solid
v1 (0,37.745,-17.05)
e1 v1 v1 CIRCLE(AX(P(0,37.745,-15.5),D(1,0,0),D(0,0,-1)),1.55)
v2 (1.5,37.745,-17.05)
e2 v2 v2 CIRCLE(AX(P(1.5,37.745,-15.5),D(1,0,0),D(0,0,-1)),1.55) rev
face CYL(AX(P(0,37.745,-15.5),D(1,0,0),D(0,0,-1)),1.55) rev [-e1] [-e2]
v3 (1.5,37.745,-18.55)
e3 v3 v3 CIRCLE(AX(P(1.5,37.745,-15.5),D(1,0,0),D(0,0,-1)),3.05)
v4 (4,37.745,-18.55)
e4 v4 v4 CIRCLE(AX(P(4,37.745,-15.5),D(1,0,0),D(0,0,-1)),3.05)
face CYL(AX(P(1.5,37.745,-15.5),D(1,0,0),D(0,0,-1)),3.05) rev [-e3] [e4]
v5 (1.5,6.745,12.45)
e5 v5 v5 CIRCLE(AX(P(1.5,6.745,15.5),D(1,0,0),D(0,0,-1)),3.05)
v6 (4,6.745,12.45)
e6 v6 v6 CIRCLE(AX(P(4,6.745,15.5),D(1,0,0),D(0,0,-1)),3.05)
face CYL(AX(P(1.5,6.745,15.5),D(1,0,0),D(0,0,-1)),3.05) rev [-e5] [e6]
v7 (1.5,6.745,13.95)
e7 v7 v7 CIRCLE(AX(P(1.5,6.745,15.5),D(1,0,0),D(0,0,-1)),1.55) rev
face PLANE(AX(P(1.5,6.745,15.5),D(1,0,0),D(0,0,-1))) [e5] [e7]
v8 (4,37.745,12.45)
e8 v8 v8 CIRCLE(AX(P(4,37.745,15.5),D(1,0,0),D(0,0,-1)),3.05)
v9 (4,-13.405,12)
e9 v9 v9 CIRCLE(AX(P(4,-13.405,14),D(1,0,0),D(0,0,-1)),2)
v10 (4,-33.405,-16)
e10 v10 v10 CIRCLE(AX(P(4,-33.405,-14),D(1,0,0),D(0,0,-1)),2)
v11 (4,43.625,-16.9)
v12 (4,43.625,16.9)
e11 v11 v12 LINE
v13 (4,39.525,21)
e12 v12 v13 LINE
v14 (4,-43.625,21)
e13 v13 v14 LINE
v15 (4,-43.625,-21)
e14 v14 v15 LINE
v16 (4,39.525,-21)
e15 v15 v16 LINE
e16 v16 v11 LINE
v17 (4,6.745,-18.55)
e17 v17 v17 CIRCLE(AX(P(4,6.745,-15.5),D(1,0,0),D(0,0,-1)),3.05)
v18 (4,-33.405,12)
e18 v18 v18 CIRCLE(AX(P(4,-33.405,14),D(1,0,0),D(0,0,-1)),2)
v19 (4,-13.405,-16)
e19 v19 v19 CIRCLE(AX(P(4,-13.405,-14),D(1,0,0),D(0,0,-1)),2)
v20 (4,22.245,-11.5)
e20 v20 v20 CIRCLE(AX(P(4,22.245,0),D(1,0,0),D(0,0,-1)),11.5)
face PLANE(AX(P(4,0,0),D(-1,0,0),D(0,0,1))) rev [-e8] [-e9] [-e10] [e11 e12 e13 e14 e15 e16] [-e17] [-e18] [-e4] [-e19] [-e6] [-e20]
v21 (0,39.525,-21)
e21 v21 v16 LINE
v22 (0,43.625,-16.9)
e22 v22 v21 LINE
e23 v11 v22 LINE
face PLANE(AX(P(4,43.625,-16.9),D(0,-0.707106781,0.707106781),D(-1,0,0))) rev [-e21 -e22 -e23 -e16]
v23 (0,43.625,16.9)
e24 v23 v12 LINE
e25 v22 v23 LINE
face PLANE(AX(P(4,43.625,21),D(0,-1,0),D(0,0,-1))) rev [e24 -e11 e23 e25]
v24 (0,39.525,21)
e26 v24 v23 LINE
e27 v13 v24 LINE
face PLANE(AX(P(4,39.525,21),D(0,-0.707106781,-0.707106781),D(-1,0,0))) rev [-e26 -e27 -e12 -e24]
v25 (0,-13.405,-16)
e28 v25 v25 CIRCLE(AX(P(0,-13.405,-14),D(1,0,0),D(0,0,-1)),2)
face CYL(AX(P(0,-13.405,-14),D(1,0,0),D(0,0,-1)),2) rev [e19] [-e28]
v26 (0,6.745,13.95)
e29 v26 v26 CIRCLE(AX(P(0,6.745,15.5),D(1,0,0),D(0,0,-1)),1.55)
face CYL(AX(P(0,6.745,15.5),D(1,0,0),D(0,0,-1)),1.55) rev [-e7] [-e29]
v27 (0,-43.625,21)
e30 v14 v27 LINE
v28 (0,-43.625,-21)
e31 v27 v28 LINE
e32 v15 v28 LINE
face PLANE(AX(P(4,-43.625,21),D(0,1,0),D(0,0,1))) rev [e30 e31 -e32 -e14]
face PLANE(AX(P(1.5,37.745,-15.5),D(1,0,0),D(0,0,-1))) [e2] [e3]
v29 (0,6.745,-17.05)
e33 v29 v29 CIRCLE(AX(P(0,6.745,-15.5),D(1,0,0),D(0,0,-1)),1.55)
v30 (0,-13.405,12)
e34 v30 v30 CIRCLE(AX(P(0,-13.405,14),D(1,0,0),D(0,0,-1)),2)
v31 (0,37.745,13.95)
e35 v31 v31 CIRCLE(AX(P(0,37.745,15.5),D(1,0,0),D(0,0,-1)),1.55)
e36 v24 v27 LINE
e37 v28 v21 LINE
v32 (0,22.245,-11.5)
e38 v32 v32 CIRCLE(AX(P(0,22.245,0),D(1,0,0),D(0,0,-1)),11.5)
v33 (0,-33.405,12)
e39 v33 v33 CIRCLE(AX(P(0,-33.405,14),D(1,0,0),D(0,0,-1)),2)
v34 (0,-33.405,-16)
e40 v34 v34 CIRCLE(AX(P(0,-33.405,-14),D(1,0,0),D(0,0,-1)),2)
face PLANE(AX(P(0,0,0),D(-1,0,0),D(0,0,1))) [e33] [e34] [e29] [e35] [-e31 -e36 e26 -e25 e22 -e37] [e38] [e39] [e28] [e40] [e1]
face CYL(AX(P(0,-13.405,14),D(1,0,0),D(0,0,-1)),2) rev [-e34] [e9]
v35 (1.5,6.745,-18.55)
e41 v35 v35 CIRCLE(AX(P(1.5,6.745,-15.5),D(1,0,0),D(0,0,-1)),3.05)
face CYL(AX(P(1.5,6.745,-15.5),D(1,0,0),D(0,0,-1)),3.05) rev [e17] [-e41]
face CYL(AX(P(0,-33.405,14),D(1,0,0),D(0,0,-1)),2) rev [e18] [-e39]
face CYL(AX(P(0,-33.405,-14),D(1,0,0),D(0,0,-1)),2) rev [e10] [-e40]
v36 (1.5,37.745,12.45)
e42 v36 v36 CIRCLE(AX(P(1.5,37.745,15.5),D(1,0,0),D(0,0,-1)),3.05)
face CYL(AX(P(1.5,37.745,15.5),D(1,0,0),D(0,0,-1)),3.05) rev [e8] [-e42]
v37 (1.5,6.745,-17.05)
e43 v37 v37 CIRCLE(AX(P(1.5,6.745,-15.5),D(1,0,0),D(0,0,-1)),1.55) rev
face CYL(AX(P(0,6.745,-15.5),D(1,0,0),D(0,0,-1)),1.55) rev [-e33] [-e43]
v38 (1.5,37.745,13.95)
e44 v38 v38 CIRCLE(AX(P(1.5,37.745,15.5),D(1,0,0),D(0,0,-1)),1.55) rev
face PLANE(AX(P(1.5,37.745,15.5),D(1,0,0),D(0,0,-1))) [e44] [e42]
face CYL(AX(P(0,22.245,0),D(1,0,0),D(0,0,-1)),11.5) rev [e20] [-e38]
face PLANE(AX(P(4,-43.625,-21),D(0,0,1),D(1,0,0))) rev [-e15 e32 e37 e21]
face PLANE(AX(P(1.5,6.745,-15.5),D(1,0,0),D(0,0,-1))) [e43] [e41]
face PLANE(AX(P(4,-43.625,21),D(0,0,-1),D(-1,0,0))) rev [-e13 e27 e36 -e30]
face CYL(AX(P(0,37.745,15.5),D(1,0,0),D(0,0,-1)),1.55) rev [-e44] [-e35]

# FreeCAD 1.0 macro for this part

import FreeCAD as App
import Part
import Sketcher
from FreeCAD import Vector
Q = App.Units.Quantity


def edges_at(feature, points):
    """Names of the edges that pass closest to the given points."""
    edges = feature.Shape.Edges
    near = lambda p: min(range(len(edges)), key=lambda i: edges[i].distToShape(Part.Vertex(*p))[0])
    return sorted({f"Edge{near(p) + 1}" for p in points})

doc = App.newDocument("Part")
params = doc.addObject("Spreadsheet::Sheet", "Params")
for row, (alias, value) in enumerate([
    ("sketch1_height", "42 mm"),
    ("sketch1_width", "87.25 mm"),
    ("pad1_length", "4 mm"),
    ("sketch2_diameter", "23 mm"),
    ("sketch2_diameter2", "3.1 mm"),
    ("sketch3_diameter", "4 mm"),
    ("chamfer_size", "4.1 mm"),
    ("sketch4_diameter", "6.1 mm"),
    ("pocket3_length", "2.5 mm"),
], start=1):
    params.set(f"A{row}", alias)
    params.set(f"B{row}", "=" + value)
    params.setAlias(f"B{row}", alias)

body = doc.addObject("PartDesign::Body", "Body")

# Sketch on YZ plane
sketch1 = body.newObject("Sketcher::SketchObject", "Sketch")
sketch1.AttachmentSupport = (doc.getObject("YZ_Plane"), [""])
sketch1.MapMode = "FlatFace"
sketch1.addGeometry([
    Part.LineSegment(Vector(44, 21, 0), Vector(-44, 21, 0)),
    Part.LineSegment(Vector(-44, 21, 0), Vector(-44, -21, 0)),
    Part.LineSegment(Vector(-44, -21, 0), Vector(44, -21, 0)),
    Part.LineSegment(Vector(44, -21, 0), Vector(44, 21, 0)),
], False)
sketch1.addConstraint([
    Sketcher.Constraint("Coincident", 0, 2, 1, 1),
    Sketcher.Constraint("Coincident", 1, 2, 2, 1),
    Sketcher.Constraint("Coincident", 2, 2, 3, 1),
    Sketcher.Constraint("Coincident", 3, 2, 0, 1),
    Sketcher.Constraint("Horizontal", 0),
    Sketcher.Constraint("Vertical", 1),
    Sketcher.Constraint("Horizontal", 2),
    Sketcher.Constraint("Vertical", 3),
    Sketcher.Constraint("Symmetric", 0, 2, 2, 2, -1, 1),
    Sketcher.Constraint("DistanceY", 1, 2, 1, 1, Q("42 mm")),
    Sketcher.Constraint("DistanceX", 0, 2, 0, 1, Q("87.25 mm")),
])
sketch1.setExpression("Constraints[9]", "Params.sketch1_height")
sketch1.setExpression("Constraints[10]", "Params.sketch1_width")
pad1 = body.newObject("PartDesign::Pad", "Pad")
pad1.Profile = sketch1
pad1.setExpression("Length", "Params.pad1_length")

# Sketch on YZ plane
sketch2 = body.newObject("Sketcher::SketchObject", "Sketch001")
sketch2.AttachmentSupport = (doc.getObject("YZ_Plane"), [""])
sketch2.MapMode = "FlatFace"
sketch2.AttachmentOffset = App.Placement(Vector(0, 0, 4), App.Rotation())
sketch2.addGeometry([
    Part.Circle(Vector(37.7, 15.5, 0), Vector(0, 0, 1), 1.6),  # 0
    Part.Circle(Vector(37.7, -15.5, 0), Vector(0, 0, 1), 1.6),  # 1
    Part.Circle(Vector(6.7, -15.5, 0), Vector(0, 0, 1), 1.6),  # 2
    Part.Circle(Vector(6.7, 15.5, 0), Vector(0, 0, 1), 1.6),  # 3
    Part.Circle(Vector(22.2, 0, 0), Vector(0, 0, 1), 11.5),  # 4
], False)
sketch2.addConstraint([
    Sketcher.Constraint("Equal", 0, 1),
    Sketcher.Constraint("Equal", 1, 2),
    Sketcher.Constraint("Equal", 2, 3),
    Sketcher.Constraint("Symmetric", 0, 3, 1, 3, -1),
    Sketcher.Constraint("Symmetric", 2, 3, 3, 3, -1),
    Sketcher.Constraint("PointOnObject", 4, 3, -1),
    Sketcher.Constraint("Horizontal", 1, 3, 2, 3),
    Sketcher.Constraint("Diameter", 4, Q("23 mm")),
    Sketcher.Constraint("Diameter", 0, Q("3.1 mm")),
    Sketcher.Constraint("DistanceY", 1, 3, 0, 3, Q("31 mm")),
    Sketcher.Constraint("DistanceX", 2, 3, 1, 3, Q("31 mm")),
    Sketcher.Constraint("DistanceX", 4, 3, 0, 3, Q("15.5 mm")),
    Sketcher.Constraint("DistanceX", -1, 1, 0, 3, Q("37.745 mm")),
])
sketch2.setExpression("Constraints[7]", "Params.sketch2_diameter")
sketch2.setExpression("Constraints[8]", "Params.sketch2_diameter2")
pocket1 = body.newObject("PartDesign::Pocket", "Pocket")
pocket1.Profile = sketch2
pocket1.Type = "ThroughAll"

# Sketch on YZ plane
sketch3 = body.newObject("Sketcher::SketchObject", "Sketch002")
sketch3.AttachmentSupport = (doc.getObject("YZ_Plane"), [""])
sketch3.MapMode = "FlatFace"
sketch3.AttachmentOffset = App.Placement(Vector(0, 0, 4), App.Rotation())
sketch3.addGeometry([
    Part.Circle(Vector(-13.4, 14, 0), Vector(0, 0, 1), 2),
    Part.Circle(Vector(-13.4, -14, 0), Vector(0, 0, 1), 2),
    Part.Circle(Vector(-33.4, 14, 0), Vector(0, 0, 1), 2),
    Part.Circle(Vector(-33.4, -14, 0), Vector(0, 0, 1), 2),
], False)
sketch3.addConstraint([
    Sketcher.Constraint("Equal", 0, 1),
    Sketcher.Constraint("Equal", 1, 2),
    Sketcher.Constraint("Equal", 2, 3),
    Sketcher.Constraint("Symmetric", 0, 3, 1, 3, -1),
    Sketcher.Constraint("Symmetric", 2, 3, 3, 3, -1),
    Sketcher.Constraint("Horizontal", 0, 3, 2, 3),
    Sketcher.Constraint("Diameter", 0, Q("4 mm")),
    Sketcher.Constraint("DistanceY", -1, 1, 0, 3, Q("14 mm")),
    Sketcher.Constraint("DistanceX", 2, 3, 0, 3, Q("20 mm")),
    Sketcher.Constraint("DistanceX", 0, 3, -1, 1, Q("13.405 mm")),
])
sketch3.setExpression("Constraints[6]", "Params.sketch3_diameter")
pocket2 = body.newObject("PartDesign::Pocket", "Pocket001")
pocket2.Profile = sketch3
pocket2.Type = "ThroughAll"
doc.recompute()

chamfer = body.newObject("PartDesign::Chamfer", "Chamfer")
chamfer.Base = (pocket2, edges_at(pocket2, [(2, 43.625, 21), (2, 43.625, -21)]))
chamfer.setExpression("Size", "Params.chamfer_size")

# Sketch on YZ plane
sketch4 = body.newObject("Sketcher::SketchObject", "Sketch003")
sketch4.AttachmentSupport = (doc.getObject("YZ_Plane"), [""])
sketch4.MapMode = "FlatFace"
sketch4.AttachmentOffset = App.Placement(Vector(0, 0, 4), App.Rotation())
sketch4.addGeometry([
    Part.Circle(Vector(37.7, -15.5, 0), Vector(0, 0, 1), 3),
    Part.Circle(Vector(37.7, 15.5, 0), Vector(0, 0, 1), 3),
    Part.Circle(Vector(6.7, 15.5, 0), Vector(0, 0, 1), 3),
    Part.Circle(Vector(6.7, -15.5, 0), Vector(0, 0, 1), 3),
], False)
sketch4.addConstraint([
    Sketcher.Constraint("Equal", 0, 1),
    Sketcher.Constraint("Equal", 1, 2),
    Sketcher.Constraint("Equal", 2, 3),
    Sketcher.Constraint("Symmetric", 0, 3, 1, 3, -1),
    Sketcher.Constraint("Symmetric", 2, 3, 3, 3, -1),
    Sketcher.Constraint("Horizontal", 1, 3, 2, 3),
    Sketcher.Constraint("Diameter", 0, Q("6.1 mm")),
    Sketcher.Constraint("DistanceY", 0, 3, 1, 3, Q("31 mm")),
    Sketcher.Constraint("DistanceX", 2, 3, 1, 3, Q("31 mm")),
    Sketcher.Constraint("DistanceX", -1, 1, 0, 3, Q("37.745 mm")),
])
sketch4.setExpression("Constraints[6]", "Params.sketch4_diameter")
pocket3 = body.newObject("PartDesign::Pocket", "Pocket002")
pocket3.Profile = sketch4
pocket3.setExpression("Length", "Params.pocket3_length")

doc.recompute()
